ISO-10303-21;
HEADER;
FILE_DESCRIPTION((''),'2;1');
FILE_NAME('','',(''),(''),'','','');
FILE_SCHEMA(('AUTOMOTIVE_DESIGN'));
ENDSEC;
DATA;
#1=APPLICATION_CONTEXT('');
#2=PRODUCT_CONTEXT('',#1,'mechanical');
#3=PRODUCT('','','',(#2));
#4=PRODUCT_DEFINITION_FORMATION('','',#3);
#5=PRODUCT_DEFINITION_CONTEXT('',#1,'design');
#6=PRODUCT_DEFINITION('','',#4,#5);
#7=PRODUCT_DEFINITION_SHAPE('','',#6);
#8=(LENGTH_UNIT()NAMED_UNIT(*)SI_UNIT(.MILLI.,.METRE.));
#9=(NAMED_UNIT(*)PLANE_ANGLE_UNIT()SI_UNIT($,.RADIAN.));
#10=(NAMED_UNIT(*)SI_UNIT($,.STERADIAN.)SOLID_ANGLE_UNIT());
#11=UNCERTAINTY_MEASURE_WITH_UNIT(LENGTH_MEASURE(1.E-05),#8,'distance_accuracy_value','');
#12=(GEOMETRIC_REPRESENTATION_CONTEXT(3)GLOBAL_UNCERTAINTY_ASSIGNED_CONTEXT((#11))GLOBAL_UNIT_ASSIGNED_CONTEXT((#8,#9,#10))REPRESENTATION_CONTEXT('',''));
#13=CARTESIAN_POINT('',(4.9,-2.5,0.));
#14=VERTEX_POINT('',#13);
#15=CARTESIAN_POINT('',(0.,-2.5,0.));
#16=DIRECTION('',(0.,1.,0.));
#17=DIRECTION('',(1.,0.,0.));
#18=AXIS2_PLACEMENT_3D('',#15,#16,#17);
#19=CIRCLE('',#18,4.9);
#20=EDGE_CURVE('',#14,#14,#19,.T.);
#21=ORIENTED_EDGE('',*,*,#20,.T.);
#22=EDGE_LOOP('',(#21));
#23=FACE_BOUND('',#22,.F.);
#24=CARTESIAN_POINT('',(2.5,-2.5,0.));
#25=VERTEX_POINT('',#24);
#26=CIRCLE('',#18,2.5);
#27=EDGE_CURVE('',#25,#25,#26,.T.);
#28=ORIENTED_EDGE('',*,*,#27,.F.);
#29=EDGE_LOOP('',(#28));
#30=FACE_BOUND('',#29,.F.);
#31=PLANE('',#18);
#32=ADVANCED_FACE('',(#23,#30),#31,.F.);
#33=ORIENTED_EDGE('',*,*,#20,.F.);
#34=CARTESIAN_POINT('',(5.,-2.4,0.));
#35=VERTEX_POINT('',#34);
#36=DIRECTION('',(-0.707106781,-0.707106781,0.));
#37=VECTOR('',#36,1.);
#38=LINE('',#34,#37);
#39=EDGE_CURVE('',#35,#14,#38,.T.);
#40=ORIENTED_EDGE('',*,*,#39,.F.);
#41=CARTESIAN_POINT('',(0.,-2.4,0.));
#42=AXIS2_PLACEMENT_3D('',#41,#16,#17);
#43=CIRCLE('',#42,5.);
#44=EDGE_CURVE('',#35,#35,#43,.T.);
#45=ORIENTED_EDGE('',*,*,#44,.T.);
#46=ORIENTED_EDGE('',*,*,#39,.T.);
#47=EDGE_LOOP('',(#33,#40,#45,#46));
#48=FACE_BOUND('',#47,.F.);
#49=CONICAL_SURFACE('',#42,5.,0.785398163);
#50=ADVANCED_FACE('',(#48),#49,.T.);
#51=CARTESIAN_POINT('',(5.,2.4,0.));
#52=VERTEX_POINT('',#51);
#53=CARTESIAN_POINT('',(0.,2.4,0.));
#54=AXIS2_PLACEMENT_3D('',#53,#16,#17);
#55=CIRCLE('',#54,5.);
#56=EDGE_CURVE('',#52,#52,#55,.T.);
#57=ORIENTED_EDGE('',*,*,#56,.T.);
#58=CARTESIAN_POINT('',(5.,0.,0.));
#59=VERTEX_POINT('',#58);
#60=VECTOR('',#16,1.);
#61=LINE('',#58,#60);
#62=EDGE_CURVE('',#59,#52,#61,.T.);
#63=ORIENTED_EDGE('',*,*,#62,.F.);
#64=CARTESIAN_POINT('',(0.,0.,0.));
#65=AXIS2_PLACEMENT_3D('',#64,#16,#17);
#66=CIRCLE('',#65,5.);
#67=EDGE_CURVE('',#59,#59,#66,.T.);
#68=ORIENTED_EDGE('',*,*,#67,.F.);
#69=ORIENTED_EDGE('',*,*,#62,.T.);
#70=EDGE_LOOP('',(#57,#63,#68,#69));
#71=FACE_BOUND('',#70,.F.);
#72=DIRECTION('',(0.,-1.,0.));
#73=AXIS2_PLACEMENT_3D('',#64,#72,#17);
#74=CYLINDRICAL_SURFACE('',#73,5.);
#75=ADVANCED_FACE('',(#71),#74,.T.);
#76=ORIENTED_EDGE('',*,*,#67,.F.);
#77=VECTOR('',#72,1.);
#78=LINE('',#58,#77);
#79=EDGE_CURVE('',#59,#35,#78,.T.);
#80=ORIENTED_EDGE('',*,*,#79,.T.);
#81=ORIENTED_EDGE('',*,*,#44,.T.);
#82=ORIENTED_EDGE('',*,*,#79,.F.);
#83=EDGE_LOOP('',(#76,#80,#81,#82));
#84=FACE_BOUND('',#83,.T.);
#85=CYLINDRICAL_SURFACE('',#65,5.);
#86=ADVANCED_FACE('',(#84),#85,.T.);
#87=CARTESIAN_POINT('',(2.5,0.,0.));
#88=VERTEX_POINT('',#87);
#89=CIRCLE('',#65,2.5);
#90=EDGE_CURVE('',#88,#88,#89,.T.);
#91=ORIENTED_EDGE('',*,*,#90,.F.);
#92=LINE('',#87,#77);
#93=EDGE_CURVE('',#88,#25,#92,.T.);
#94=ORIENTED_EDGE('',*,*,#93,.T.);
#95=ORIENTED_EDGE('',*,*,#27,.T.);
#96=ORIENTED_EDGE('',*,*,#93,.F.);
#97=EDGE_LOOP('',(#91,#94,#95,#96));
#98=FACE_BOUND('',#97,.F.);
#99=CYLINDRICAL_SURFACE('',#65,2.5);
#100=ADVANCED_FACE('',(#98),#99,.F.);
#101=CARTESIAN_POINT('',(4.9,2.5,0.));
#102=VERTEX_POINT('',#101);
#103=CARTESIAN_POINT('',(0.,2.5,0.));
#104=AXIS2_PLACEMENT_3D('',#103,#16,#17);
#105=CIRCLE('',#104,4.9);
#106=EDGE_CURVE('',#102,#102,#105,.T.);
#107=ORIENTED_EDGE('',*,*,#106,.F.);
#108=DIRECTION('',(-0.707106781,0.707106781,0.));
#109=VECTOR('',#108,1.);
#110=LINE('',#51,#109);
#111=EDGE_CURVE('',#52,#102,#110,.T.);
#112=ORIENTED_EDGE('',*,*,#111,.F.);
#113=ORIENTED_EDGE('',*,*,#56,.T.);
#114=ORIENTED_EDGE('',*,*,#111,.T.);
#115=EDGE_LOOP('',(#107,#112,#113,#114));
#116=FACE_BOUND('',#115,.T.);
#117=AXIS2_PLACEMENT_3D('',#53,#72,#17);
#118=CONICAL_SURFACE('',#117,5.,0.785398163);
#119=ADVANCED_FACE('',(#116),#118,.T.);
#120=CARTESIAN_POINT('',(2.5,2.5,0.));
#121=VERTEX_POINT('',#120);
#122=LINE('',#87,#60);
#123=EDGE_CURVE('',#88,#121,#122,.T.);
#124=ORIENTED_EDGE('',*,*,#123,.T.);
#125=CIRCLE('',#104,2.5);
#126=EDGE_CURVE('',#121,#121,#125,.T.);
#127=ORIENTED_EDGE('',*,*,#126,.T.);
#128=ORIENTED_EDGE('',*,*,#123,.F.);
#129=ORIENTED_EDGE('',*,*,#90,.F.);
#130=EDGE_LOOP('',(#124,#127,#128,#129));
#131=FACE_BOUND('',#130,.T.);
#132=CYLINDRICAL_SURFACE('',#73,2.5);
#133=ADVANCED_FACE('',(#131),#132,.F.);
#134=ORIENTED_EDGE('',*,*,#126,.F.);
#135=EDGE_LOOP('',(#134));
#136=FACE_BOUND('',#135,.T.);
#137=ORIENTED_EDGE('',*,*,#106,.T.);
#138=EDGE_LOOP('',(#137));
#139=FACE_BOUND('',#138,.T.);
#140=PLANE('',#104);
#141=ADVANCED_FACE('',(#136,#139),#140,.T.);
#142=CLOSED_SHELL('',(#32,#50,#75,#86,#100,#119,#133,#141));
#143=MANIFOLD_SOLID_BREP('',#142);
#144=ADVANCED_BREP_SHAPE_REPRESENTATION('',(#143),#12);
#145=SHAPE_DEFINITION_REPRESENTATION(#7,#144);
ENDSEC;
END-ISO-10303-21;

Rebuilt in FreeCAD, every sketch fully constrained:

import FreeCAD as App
import Part
import Sketcher


def edges_at(feature, points):
    """Names of the edges that pass closest to the given points."""
    edges = feature.Shape.Edges
    near = lambda p: min(range(len(edges)), key=lambda i: edges[i].distToShape(Part.Vertex(*p))[0])
    return sorted({f"Edge{near(p) + 1}" for p in points})

doc = App.newDocument("Part")
params = doc.addObject("Spreadsheet::Sheet", "Params")
for row, (alias, value) in enumerate([
    ("sketch1_diameter", "10 mm"),
    ("sketch1_diameter2", "5 mm"),
    ("pad1_length", "5 mm"),
    ("chamfer_size", "0.1 mm"),
], start=1):
    params.set(f"A{row}", alias)
    params.set(f"B{row}", "=" + value)
    params.setAlias(f"B{row}", alias)

body = doc.addObject("PartDesign::Body", "Body")

# Sketch on XZ plane
sketch1 = doc.addObject("Sketcher::SketchObject", "Sketch")
body.addObject(sketch1)
sketch1.AttachmentSupport = (doc.XZ_Plane, [""])
sketch1.MapMode = "FlatFace"
sketch1.addGeometry(Part.Circle(App.Vector(0, 0, 0), App.Vector(0, 0, 1), 5), False)
sketch1.addGeometry(Part.Circle(App.Vector(0, 0, 0), App.Vector(0, 0, 1), 2.5), False)
sketch1.addConstraint(Sketcher.Constraint("Coincident", 0, 3, -1, 1))
sketch1.addConstraint(Sketcher.Constraint("Coincident", 1, 3, -1, 1))
sketch1.addConstraint(Sketcher.Constraint("Diameter", 0, 10.0))
sketch1.addConstraint(Sketcher.Constraint("Diameter", 1, 5.0))
sketch1.setExpression("Constraints[2]", "Params.sketch1_diameter")
sketch1.setExpression("Constraints[3]", "Params.sketch1_diameter2")
pad1 = doc.addObject("PartDesign::Pad", "Pad")
body.addObject(pad1)
pad1.Profile = sketch1
pad1.setExpression("Length", "Params.pad1_length")
pad1.Midplane = True
doc.recompute()

chamfer = doc.addObject("PartDesign::Chamfer", "Chamfer")
body.addObject(chamfer)
chamfer.Base = (pad1, edges_at(pad1, [(-4.662, -2.5, -1.808), (-4.662, 2.5, 1.808)]))
chamfer.setExpression("Size", "Params.chamfer_size")

doc.recompute()
